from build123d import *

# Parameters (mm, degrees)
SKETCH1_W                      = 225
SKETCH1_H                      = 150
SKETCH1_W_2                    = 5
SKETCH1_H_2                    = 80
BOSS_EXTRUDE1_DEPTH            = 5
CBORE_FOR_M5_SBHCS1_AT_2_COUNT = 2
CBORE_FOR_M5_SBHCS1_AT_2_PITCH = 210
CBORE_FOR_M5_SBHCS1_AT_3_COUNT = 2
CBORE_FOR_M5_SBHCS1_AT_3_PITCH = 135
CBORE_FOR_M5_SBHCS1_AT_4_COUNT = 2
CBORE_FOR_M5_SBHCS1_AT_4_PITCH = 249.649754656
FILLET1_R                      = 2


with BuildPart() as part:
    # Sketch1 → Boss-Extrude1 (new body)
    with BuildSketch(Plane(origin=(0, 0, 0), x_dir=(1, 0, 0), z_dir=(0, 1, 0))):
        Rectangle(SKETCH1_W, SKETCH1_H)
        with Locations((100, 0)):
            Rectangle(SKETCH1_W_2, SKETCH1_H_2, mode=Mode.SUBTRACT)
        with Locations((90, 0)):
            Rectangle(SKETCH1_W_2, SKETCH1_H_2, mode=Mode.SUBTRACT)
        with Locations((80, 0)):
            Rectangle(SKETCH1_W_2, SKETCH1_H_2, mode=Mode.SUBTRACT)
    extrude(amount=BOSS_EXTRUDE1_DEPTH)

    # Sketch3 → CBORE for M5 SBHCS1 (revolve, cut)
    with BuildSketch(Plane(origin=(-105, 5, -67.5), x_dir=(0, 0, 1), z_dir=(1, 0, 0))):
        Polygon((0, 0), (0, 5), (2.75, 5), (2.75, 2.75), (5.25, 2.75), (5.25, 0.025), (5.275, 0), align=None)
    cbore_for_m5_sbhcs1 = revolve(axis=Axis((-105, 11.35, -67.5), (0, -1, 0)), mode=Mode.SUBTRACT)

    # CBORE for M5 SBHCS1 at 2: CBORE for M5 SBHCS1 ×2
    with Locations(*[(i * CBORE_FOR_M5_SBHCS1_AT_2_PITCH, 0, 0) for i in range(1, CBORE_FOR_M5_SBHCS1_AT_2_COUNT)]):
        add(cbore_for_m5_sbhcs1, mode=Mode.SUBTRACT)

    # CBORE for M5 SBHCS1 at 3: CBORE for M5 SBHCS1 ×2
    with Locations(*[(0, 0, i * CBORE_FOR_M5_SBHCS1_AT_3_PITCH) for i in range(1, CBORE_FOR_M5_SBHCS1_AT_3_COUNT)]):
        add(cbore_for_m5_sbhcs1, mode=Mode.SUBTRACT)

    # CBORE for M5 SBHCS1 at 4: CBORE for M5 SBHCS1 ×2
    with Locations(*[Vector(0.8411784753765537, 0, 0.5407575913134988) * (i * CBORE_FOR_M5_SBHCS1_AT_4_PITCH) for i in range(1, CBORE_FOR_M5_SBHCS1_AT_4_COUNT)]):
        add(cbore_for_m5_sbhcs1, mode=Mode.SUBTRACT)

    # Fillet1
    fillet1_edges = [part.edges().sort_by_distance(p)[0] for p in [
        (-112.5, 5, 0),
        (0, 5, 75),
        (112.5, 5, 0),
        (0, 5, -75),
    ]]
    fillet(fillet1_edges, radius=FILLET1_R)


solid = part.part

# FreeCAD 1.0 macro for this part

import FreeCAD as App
import Part
import Sketcher

V = App.Vector
Q = App.Units.Quantity


def edges_at(feature, points):
    """Names of the edges that pass closest to the given points."""
    edges = feature.Shape.Edges
    near = lambda p: min(range(len(edges)), key=lambda i: edges[i].distToShape(Part.Vertex(*p))[0])
    return sorted({f"Edge{near(p) + 1}" for p in points})

doc = App.newDocument("Part")
params = doc.addObject("Spreadsheet::Sheet", "Params")
for row, (alias, value) in enumerate([
    ("sketch1_width", "225 mm"),
    ("sketch1_width2", "5 mm"),
    ("sketch1_height", "150 mm"),
    ("sketch1_height2", "80 mm"),
    ("pad1_length", "5 mm"),
    ("sketch2_width", "5 mm"),
    ("sketch2_height", "2.5 mm"),
    ("sketch2_width2", "2.25 mm"),
    ("sketch2_height2", "2.75 mm"),
    ("groove_angle", "360 deg"),
    ("linearpattern_pitch", "210 mm"),
    ("linearpattern2_pitch", "135 mm"),
    ("linearpattern3_pitch", "249.649755 mm"),
    ("fillet_radius", "2 mm"),
], start=1):
    params.set(f"A{row}", alias)
    params.set(f"B{row}", "=" + value)
    params.setAlias(f"B{row}", alias)

body = doc.addObject("PartDesign::Body", "Body")

sketch1 = body.newObject("Sketcher::SketchObject", "Sketch")
sketch1.AttachmentSupport = (doc.getObject("XZ_Plane"), [""])
sketch1.MapMode = "FlatFace"
sketch1.addGeometry(Part.LineSegment(V(-112, -75, 0), V(-112, 75, 0)), False)
sketch1.addGeometry(Part.LineSegment(V(-112, 75, 0), V(112, 75, 0)), False)
sketch1.addGeometry(Part.LineSegment(V(112, 75, 0), V(112, -75, 0)), False)
sketch1.addGeometry(Part.LineSegment(V(112, -75, 0), V(-112, -75, 0)), False)
sketch1.addGeometry(Part.LineSegment(V(82, 40, 0), V(78, 40, 0)), False)
sketch1.addGeometry(Part.LineSegment(V(78, 40, 0), V(78, -40, 0)), False)
sketch1.addGeometry(Part.LineSegment(V(78, -40, 0), V(82, -40, 0)), False)
sketch1.addGeometry(Part.LineSegment(V(82, -40, 0), V(82, 40, 0)), False)
sketch1.addGeometry(Part.LineSegment(V(92, 40, 0), V(88, 40, 0)), False)
sketch1.addGeometry(Part.LineSegment(V(88, 40, 0), V(88, -40, 0)), False)
sketch1.addGeometry(Part.LineSegment(V(88, -40, 0), V(92, -40, 0)), False)
sketch1.addGeometry(Part.LineSegment(V(92, -40, 0), V(92, 40, 0)), False)
sketch1.addGeometry(Part.LineSegment(V(102, 40, 0), V(98, 40, 0)), False)
sketch1.addGeometry(Part.LineSegment(V(98, 40, 0), V(98, -40, 0)), False)
sketch1.addGeometry(Part.LineSegment(V(98, -40, 0), V(102, -40, 0)), False)
sketch1.addGeometry(Part.LineSegment(V(102, -40, 0), V(102, 40, 0)), False)
sketch1.addConstraint(Sketcher.Constraint("Coincident", 0, 2, 1, 1))
sketch1.addConstraint(Sketcher.Constraint("Coincident", 1, 2, 2, 1))
sketch1.addConstraint(Sketcher.Constraint("Coincident", 2, 2, 3, 1))
sketch1.addConstraint(Sketcher.Constraint("Coincident", 3, 2, 0, 1))
sketch1.addConstraint(Sketcher.Constraint("Coincident", 4, 2, 5, 1))
sketch1.addConstraint(Sketcher.Constraint("Coincident", 5, 2, 6, 1))
sketch1.addConstraint(Sketcher.Constraint("Coincident", 6, 2, 7, 1))
sketch1.addConstraint(Sketcher.Constraint("Coincident", 7, 2, 4, 1))
sketch1.addConstraint(Sketcher.Constraint("Coincident", 8, 2, 9, 1))
sketch1.addConstraint(Sketcher.Constraint("Coincident", 9, 2, 10, 1))
sketch1.addConstraint(Sketcher.Constraint("Coincident", 10, 2, 11, 1))
sketch1.addConstraint(Sketcher.Constraint("Coincident", 11, 2, 8, 1))
sketch1.addConstraint(Sketcher.Constraint("Coincident", 12, 2, 13, 1))
sketch1.addConstraint(Sketcher.Constraint("Coincident", 13, 2, 14, 1))
sketch1.addConstraint(Sketcher.Constraint("Coincident", 14, 2, 15, 1))
sketch1.addConstraint(Sketcher.Constraint("Coincident", 15, 2, 12, 1))
sketch1.addConstraint(Sketcher.Constraint("Vertical", 0))
sketch1.addConstraint(Sketcher.Constraint("Horizontal", 1))
sketch1.addConstraint(Sketcher.Constraint("Vertical", 2))
sketch1.addConstraint(Sketcher.Constraint("Horizontal", 3))
sketch1.addConstraint(Sketcher.Constraint("Horizontal", 4))
sketch1.addConstraint(Sketcher.Constraint("Vertical", 5))
sketch1.addConstraint(Sketcher.Constraint("Horizontal", 6))
sketch1.addConstraint(Sketcher.Constraint("Vertical", 7))
sketch1.addConstraint(Sketcher.Constraint("Horizontal", 8))
sketch1.addConstraint(Sketcher.Constraint("Vertical", 9))
sketch1.addConstraint(Sketcher.Constraint("Horizontal", 10))
sketch1.addConstraint(Sketcher.Constraint("Vertical", 11))
sketch1.addConstraint(Sketcher.Constraint("Horizontal", 12))
sketch1.addConstraint(Sketcher.Constraint("Vertical", 13))
sketch1.addConstraint(Sketcher.Constraint("Horizontal", 14))
sketch1.addConstraint(Sketcher.Constraint("Vertical", 15))
sketch1.addConstraint(Sketcher.Constraint("Symmetric", 0, 2, 2, 2, -1, 1))
sketch1.addConstraint(Sketcher.Constraint("Horizontal", 7, 2, 8, 2))
sketch1.addConstraint(Sketcher.Constraint("Horizontal", 6, 2, 9, 2))
sketch1.addConstraint(Sketcher.Constraint("Horizontal", 11, 2, 12, 2))
sketch1.addConstraint(Sketcher.Constraint("Horizontal", 10, 2, 13, 2))
sketch1.addConstraint(Sketcher.Constraint("Equal", 6, 8))
sketch1.addConstraint(Sketcher.Constraint("Equal", 10, 12))
sketch1.addConstraint(Sketcher.Constraint("DistanceX", 1, 1, 1, 2, Q("225 mm")))
sketch1.addConstraint(Sketcher.Constraint("DistanceX", 4, 2, 4, 1, Q("5 mm")))
sketch1.addConstraint(Sketcher.Constraint("DistanceY", 0, 1, 0, 2, Q("150 mm")))
sketch1.addConstraint(Sketcher.Constraint("DistanceY", 5, 2, 5, 1, Q("80 mm")))
sketch1.addConstraint(Sketcher.Constraint("DistanceY", -1, 1, 4, 2, Q("40 mm")))
sketch1.addConstraint(Sketcher.Constraint("DistanceX", 4, 2, 1, 2, Q("35 mm")))
sketch1.addConstraint(Sketcher.Constraint("DistanceX", 7, 2, 8, 2, Q("5 mm")))
sketch1.addConstraint(Sketcher.Constraint("DistanceX", 11, 2, 12, 2, Q("5 mm")))
sketch1.setExpression("Constraints[39]", "Params.sketch1_width")
sketch1.setExpression("Constraints[40]", "Params.sketch1_width2")
sketch1.setExpression("Constraints[41]", "Params.sketch1_height")
sketch1.setExpression("Constraints[42]", "Params.sketch1_height2")
pad1 = body.newObject("PartDesign::Pad", "Pad")
pad1.Profile = sketch1
pad1.setExpression("Length", "Params.pad1_length")
pad1.Reversed = True

sketch2 = body.newObject("Sketcher::SketchObject", "Sketch001")
sketch2.AttachmentSupport = (doc.getObject("YZ_Plane"), [""])
sketch2.MapMode = "FlatFace"
sketch2.AttachmentOffset = App.Placement(V(0, 0, -105), App.Rotation())
sketch2.addGeometry(Part.LineSegment(V(0, -67.5, 0), V(5, -67.5, 0)), False)
sketch2.addGeometry(Part.LineSegment(V(5, -67.5, 0), V(5, -62.225, 0)), False)
sketch2.addGeometry(Part.LineSegment(V(5, -62.225, 0), V(4.975, -62.25, 0)), False)
sketch2.addGeometry(Part.LineSegment(V(4.975, -62.25, 0), V(2.25, -62.25, 0)), False)
sketch2.addGeometry(Part.LineSegment(V(2.25, -62.25, 0), V(2.25, -64.75, 0)), False)
sketch2.addGeometry(Part.LineSegment(V(2.25, -64.75, 0), V(0, -64.75, 0)), False)
sketch2.addGeometry(Part.LineSegment(V(0, -64.75, 0), V(0, -67.5, 0)), False)
sketch2.addGeometry(Part.LineSegment(V(5, -67.5, 0), V(0, -67.5, 0)), True)
sketch2.addConstraint(Sketcher.Constraint("Coincident", 0, 2, 1, 1))
sketch2.addConstraint(Sketcher.Constraint("Coincident", 1, 2, 2, 1))
sketch2.addConstraint(Sketcher.Constraint("Coincident", 2, 2, 3, 1))
sketch2.addConstraint(Sketcher.Constraint("Coincident", 3, 2, 4, 1))
sketch2.addConstraint(Sketcher.Constraint("Coincident", 4, 2, 5, 1))
sketch2.addConstraint(Sketcher.Constraint("Coincident", 5, 2, 6, 1))
sketch2.addConstraint(Sketcher.Constraint("Coincident", 6, 2, 0, 1))
sketch2.addConstraint(Sketcher.Constraint("Horizontal", 0))
sketch2.addConstraint(Sketcher.Constraint("Vertical", 1))
sketch2.addConstraint(Sketcher.Constraint("Horizontal", 3))
sketch2.addConstraint(Sketcher.Constraint("Vertical", 4))
sketch2.addConstraint(Sketcher.Constraint("Horizontal", 5))
sketch2.addConstraint(Sketcher.Constraint("Vertical", 6))
sketch2.addConstraint(Sketcher.Constraint("Horizontal", 7))
sketch2.addConstraint(Sketcher.Constraint("Coincident", 7, 1, 0, 2))
sketch2.addConstraint(Sketcher.Constraint("PointOnObject", 5, 2, -2))
sketch2.addConstraint(Sketcher.Constraint("PointOnObject", 7, 2, -2))
sketch2.addConstraint(Sketcher.Constraint("DistanceX", 0, 1, 0, 2, Q("5 mm")))
sketch2.addConstraint(Sketcher.Constraint("Angle", 2, Q("-135 deg")))
sketch2.addConstraint(Sketcher.Constraint("DistanceY", 4, 2, 4, 1, Q("2.5 mm")))
sketch2.addConstraint(Sketcher.Constraint("DistanceX", 5, 2, 5, 1, Q("2.25 mm")))
sketch2.addConstraint(Sketcher.Constraint("DistanceY", 6, 2, 6, 1, Q("2.75 mm")))
sketch2.addConstraint(Sketcher.Constraint("DistanceY", 0, 2, -1, 1, Q("67.5 mm")))
sketch2.addConstraint(Sketcher.Constraint("DistanceX", 3, 2, 3, 1, Q("2.725 mm")))
sketch2.setExpression("Constraints[17]", "Params.sketch2_width")
sketch2.setExpression("Constraints[19]", "Params.sketch2_height")
sketch2.setExpression("Constraints[20]", "Params.sketch2_width2")
sketch2.setExpression("Constraints[21]", "Params.sketch2_height2")
groove = body.newObject("PartDesign::Groove", "Groove")
groove.Profile = sketch2
groove.ReferenceAxis = (sketch2, ["Axis0"])
groove.setExpression("Angle", "Params.groove_angle")
doc.recompute()

linearpattern = body.newObject("PartDesign::LinearPattern", "LinearPattern")
linearpattern.Originals = [groove]
linearpattern.Direction = (doc.getObject("X_Axis"), [""])
linearpattern.Mode = "offset"
linearpattern.setExpression("Offset", "Params.linearpattern_pitch")
linearpattern.Occurrences = 2
body.Tip = linearpattern
doc.recompute()

linearpattern2 = body.newObject("PartDesign::LinearPattern", "LinearPattern001")
linearpattern2.Originals = [groove]
linearpattern2.Direction = (doc.getObject("Z_Axis"), [""])
linearpattern2.Mode = "offset"
linearpattern2.setExpression("Offset", "Params.linearpattern2_pitch")
linearpattern2.Occurrences = 2
body.Tip = linearpattern2
doc.recompute()

datumline = body.newObject("PartDesign::Line", "DatumLine")
datumline.Placement = App.Placement(V(0, 0, 0), App.Rotation(V(0, 0, 1), V(0.841178475, 0, 0.540757591)))
linearpattern3 = body.newObject("PartDesign::LinearPattern", "LinearPattern002")
linearpattern3.Originals = [groove]
linearpattern3.Direction = (datumline, [""])
linearpattern3.Mode = "offset"
linearpattern3.setExpression("Offset", "Params.linearpattern3_pitch")
linearpattern3.Occurrences = 2
body.Tip = linearpattern3
doc.recompute()

fillet = body.newObject("PartDesign::Fillet", "Fillet")
fillet.Base = (linearpattern3, edges_at(linearpattern3, [
    (-112.5, 5, 0),
    (0, 5, 75),
    (112.5, 5, 0),
    (0, 5, -75),
]))
fillet.setExpression("Radius", "Params.fillet_radius")

doc.recompute()
